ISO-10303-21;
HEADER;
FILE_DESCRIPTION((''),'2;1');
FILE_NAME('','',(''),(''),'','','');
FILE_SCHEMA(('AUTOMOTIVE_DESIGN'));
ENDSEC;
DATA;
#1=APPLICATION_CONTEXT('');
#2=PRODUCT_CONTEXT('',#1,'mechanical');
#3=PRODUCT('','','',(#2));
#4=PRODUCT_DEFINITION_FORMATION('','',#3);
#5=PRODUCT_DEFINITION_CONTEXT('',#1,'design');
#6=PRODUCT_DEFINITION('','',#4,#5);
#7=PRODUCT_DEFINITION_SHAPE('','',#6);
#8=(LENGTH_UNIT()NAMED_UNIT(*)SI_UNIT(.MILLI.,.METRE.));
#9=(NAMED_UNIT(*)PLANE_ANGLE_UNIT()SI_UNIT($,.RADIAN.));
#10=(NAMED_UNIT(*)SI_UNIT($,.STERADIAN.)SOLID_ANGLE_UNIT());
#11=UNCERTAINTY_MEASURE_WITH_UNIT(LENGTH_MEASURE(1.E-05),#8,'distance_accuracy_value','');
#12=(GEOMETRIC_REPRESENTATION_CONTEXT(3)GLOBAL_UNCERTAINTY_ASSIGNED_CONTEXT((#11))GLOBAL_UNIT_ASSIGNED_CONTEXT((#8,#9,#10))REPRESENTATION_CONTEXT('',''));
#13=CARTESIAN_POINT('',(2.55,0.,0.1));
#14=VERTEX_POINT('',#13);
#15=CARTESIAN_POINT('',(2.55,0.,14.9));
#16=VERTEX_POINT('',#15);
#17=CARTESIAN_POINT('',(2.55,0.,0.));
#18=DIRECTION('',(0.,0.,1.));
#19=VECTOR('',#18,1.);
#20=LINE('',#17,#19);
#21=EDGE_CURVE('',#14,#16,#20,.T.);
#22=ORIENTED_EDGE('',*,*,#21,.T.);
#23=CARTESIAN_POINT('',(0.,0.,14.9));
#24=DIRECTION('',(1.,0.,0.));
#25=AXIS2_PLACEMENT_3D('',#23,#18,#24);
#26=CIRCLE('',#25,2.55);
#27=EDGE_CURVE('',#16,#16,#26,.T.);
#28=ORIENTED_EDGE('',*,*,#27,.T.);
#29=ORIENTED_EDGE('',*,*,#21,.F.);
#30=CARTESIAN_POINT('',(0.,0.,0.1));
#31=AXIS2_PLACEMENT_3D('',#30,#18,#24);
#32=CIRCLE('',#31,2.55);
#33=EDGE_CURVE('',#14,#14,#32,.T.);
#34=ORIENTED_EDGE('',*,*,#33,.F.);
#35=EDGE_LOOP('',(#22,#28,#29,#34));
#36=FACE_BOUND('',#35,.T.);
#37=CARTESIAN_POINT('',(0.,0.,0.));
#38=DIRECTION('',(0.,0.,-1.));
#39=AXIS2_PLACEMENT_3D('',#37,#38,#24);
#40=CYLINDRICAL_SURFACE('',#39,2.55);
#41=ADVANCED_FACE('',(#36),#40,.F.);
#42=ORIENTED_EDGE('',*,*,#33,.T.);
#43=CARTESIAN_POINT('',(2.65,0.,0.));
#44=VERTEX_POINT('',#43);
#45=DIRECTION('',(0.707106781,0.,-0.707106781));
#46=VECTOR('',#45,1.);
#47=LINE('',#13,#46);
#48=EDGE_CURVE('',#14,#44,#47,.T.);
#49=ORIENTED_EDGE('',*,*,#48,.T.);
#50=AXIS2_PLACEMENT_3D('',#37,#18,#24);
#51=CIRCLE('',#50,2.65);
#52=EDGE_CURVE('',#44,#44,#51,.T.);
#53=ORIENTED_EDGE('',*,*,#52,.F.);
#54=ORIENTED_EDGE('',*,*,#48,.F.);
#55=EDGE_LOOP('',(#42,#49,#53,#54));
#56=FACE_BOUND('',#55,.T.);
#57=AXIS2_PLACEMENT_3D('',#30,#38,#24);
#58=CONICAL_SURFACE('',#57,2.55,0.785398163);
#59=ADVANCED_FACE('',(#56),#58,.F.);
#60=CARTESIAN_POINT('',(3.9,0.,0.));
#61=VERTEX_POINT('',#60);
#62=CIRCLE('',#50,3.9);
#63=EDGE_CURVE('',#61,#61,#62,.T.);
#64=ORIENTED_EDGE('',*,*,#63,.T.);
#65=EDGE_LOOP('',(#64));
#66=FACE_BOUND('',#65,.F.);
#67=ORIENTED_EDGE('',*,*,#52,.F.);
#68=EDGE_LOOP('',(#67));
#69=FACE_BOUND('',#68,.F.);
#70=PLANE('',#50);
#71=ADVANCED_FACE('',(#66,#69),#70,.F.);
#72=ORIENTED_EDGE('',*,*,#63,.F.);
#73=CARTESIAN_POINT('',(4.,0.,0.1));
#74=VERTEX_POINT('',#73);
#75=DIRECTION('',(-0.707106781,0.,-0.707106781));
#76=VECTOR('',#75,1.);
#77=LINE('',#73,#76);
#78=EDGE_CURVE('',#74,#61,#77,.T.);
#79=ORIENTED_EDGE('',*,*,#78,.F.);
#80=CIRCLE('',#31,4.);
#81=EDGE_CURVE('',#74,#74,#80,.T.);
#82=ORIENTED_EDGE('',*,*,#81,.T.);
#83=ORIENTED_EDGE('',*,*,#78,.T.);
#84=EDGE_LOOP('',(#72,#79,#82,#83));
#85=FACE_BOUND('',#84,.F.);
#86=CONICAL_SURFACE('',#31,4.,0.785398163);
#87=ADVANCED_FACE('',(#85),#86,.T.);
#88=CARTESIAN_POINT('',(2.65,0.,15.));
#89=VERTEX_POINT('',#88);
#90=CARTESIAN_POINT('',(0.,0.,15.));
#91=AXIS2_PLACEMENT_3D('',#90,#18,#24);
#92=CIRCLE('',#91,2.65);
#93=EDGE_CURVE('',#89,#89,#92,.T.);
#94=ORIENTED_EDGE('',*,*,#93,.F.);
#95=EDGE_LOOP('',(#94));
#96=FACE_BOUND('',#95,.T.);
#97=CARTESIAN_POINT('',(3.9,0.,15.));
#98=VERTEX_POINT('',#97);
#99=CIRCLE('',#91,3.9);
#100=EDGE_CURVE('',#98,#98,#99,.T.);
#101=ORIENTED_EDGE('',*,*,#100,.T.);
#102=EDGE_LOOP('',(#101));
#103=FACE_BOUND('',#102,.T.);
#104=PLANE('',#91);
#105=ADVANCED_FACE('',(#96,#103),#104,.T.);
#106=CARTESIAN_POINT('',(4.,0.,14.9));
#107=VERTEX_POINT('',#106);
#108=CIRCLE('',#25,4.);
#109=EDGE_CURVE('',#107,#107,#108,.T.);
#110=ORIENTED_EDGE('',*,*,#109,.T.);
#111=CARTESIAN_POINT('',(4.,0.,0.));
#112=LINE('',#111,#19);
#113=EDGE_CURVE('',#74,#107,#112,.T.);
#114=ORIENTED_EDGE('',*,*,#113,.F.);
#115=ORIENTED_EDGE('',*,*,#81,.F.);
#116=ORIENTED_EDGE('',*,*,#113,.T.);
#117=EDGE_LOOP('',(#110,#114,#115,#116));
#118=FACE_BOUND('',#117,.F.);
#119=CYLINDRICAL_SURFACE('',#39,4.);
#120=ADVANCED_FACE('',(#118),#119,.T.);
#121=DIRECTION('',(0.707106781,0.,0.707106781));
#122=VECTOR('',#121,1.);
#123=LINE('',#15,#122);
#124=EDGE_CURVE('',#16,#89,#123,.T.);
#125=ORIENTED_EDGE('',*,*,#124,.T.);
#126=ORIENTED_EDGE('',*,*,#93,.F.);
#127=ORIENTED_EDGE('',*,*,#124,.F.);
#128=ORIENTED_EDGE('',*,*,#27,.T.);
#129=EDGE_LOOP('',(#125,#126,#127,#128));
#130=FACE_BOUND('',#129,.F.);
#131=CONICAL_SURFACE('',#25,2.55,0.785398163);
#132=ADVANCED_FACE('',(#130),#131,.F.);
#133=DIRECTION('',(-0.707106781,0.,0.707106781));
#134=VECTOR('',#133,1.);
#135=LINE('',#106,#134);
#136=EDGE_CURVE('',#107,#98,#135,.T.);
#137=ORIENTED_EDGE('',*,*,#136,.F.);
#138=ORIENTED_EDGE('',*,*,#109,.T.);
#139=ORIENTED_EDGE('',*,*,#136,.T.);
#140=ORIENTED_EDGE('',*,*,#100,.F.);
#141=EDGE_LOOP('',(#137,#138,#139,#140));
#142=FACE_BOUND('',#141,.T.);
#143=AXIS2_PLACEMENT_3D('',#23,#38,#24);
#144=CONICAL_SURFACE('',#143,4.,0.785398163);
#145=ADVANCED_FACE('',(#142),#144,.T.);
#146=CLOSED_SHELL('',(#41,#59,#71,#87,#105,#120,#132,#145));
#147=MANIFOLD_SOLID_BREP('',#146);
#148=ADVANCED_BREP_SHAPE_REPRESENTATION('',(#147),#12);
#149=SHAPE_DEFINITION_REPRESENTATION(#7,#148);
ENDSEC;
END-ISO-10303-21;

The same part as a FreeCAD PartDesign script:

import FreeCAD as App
import Part
import Sketcher
Q = App.Units.Quantity


def edges_at(feature, points):
    """Names of the edges that pass closest to the given points."""
    edges = feature.Shape.Edges
    near = lambda p: min(range(len(edges)), key=lambda i: edges[i].distToShape(Part.Vertex(*p))[0])
    return sorted({f"Edge{near(p) + 1}" for p in points})

doc = App.newDocument("Part")
params = doc.addObject("Spreadsheet::Sheet", "Params")
for row, (alias, value) in enumerate([
    ("sketch1_diameter", "8 mm"),
    ("sketch1_diameter2", "5.1 mm"),
    ("pad1_length", "15 mm"),
    ("chamfer_size", "0.1 mm"),
], start=1):
    params.set(f"A{row}", alias)
    params.set(f"B{row}", "=" + value)
    params.setAlias(f"B{row}", alias)

body = doc.addObject("PartDesign::Body", "Body")

# Sketch on XY plane
sketch1 = body.newObject("Sketcher::SketchObject", "Sketch")
sketch1.AttachmentSupport = (doc.getObject("XY_Plane"), [""])
sketch1.MapMode = "FlatFace"
sketch1.addGeometry([
    Part.Circle(App.Vector(0, 0, 0), App.Vector(0, 0, 1), 4),
    Part.Circle(App.Vector(0, 0, 0), App.Vector(0, 0, 1), 2.5),
], False)
sketch1.addConstraint([
    Sketcher.Constraint("Coincident", 0, 3, -1, 1),
    Sketcher.Constraint("Coincident", 1, 3, -1, 1),
    Sketcher.Constraint("Diameter", 0, Q("8 mm")),
    Sketcher.Constraint("Diameter", 1, Q("5.1 mm")),
])
sketch1.setExpression("Constraints[2]", "Params.sketch1_diameter")
sketch1.setExpression("Constraints[3]", "Params.sketch1_diameter2")
pad1 = body.newObject("PartDesign::Pad", "Pad")
pad1.Profile = sketch1
pad1.setExpression("Length", "Params.pad1_length")
doc.recompute()

chamfer = body.newObject("PartDesign::Chamfer", "Chamfer")
chamfer.Base = (pad1, edges_at(pad1, [
    (-4, 0, 0),
    (-4, 0, 15),
    (-2.55, 0, 0),
    (-2.55, 0, 15),
]))
chamfer.setExpression("Size", "Params.chamfer_size")

doc.recompute()
